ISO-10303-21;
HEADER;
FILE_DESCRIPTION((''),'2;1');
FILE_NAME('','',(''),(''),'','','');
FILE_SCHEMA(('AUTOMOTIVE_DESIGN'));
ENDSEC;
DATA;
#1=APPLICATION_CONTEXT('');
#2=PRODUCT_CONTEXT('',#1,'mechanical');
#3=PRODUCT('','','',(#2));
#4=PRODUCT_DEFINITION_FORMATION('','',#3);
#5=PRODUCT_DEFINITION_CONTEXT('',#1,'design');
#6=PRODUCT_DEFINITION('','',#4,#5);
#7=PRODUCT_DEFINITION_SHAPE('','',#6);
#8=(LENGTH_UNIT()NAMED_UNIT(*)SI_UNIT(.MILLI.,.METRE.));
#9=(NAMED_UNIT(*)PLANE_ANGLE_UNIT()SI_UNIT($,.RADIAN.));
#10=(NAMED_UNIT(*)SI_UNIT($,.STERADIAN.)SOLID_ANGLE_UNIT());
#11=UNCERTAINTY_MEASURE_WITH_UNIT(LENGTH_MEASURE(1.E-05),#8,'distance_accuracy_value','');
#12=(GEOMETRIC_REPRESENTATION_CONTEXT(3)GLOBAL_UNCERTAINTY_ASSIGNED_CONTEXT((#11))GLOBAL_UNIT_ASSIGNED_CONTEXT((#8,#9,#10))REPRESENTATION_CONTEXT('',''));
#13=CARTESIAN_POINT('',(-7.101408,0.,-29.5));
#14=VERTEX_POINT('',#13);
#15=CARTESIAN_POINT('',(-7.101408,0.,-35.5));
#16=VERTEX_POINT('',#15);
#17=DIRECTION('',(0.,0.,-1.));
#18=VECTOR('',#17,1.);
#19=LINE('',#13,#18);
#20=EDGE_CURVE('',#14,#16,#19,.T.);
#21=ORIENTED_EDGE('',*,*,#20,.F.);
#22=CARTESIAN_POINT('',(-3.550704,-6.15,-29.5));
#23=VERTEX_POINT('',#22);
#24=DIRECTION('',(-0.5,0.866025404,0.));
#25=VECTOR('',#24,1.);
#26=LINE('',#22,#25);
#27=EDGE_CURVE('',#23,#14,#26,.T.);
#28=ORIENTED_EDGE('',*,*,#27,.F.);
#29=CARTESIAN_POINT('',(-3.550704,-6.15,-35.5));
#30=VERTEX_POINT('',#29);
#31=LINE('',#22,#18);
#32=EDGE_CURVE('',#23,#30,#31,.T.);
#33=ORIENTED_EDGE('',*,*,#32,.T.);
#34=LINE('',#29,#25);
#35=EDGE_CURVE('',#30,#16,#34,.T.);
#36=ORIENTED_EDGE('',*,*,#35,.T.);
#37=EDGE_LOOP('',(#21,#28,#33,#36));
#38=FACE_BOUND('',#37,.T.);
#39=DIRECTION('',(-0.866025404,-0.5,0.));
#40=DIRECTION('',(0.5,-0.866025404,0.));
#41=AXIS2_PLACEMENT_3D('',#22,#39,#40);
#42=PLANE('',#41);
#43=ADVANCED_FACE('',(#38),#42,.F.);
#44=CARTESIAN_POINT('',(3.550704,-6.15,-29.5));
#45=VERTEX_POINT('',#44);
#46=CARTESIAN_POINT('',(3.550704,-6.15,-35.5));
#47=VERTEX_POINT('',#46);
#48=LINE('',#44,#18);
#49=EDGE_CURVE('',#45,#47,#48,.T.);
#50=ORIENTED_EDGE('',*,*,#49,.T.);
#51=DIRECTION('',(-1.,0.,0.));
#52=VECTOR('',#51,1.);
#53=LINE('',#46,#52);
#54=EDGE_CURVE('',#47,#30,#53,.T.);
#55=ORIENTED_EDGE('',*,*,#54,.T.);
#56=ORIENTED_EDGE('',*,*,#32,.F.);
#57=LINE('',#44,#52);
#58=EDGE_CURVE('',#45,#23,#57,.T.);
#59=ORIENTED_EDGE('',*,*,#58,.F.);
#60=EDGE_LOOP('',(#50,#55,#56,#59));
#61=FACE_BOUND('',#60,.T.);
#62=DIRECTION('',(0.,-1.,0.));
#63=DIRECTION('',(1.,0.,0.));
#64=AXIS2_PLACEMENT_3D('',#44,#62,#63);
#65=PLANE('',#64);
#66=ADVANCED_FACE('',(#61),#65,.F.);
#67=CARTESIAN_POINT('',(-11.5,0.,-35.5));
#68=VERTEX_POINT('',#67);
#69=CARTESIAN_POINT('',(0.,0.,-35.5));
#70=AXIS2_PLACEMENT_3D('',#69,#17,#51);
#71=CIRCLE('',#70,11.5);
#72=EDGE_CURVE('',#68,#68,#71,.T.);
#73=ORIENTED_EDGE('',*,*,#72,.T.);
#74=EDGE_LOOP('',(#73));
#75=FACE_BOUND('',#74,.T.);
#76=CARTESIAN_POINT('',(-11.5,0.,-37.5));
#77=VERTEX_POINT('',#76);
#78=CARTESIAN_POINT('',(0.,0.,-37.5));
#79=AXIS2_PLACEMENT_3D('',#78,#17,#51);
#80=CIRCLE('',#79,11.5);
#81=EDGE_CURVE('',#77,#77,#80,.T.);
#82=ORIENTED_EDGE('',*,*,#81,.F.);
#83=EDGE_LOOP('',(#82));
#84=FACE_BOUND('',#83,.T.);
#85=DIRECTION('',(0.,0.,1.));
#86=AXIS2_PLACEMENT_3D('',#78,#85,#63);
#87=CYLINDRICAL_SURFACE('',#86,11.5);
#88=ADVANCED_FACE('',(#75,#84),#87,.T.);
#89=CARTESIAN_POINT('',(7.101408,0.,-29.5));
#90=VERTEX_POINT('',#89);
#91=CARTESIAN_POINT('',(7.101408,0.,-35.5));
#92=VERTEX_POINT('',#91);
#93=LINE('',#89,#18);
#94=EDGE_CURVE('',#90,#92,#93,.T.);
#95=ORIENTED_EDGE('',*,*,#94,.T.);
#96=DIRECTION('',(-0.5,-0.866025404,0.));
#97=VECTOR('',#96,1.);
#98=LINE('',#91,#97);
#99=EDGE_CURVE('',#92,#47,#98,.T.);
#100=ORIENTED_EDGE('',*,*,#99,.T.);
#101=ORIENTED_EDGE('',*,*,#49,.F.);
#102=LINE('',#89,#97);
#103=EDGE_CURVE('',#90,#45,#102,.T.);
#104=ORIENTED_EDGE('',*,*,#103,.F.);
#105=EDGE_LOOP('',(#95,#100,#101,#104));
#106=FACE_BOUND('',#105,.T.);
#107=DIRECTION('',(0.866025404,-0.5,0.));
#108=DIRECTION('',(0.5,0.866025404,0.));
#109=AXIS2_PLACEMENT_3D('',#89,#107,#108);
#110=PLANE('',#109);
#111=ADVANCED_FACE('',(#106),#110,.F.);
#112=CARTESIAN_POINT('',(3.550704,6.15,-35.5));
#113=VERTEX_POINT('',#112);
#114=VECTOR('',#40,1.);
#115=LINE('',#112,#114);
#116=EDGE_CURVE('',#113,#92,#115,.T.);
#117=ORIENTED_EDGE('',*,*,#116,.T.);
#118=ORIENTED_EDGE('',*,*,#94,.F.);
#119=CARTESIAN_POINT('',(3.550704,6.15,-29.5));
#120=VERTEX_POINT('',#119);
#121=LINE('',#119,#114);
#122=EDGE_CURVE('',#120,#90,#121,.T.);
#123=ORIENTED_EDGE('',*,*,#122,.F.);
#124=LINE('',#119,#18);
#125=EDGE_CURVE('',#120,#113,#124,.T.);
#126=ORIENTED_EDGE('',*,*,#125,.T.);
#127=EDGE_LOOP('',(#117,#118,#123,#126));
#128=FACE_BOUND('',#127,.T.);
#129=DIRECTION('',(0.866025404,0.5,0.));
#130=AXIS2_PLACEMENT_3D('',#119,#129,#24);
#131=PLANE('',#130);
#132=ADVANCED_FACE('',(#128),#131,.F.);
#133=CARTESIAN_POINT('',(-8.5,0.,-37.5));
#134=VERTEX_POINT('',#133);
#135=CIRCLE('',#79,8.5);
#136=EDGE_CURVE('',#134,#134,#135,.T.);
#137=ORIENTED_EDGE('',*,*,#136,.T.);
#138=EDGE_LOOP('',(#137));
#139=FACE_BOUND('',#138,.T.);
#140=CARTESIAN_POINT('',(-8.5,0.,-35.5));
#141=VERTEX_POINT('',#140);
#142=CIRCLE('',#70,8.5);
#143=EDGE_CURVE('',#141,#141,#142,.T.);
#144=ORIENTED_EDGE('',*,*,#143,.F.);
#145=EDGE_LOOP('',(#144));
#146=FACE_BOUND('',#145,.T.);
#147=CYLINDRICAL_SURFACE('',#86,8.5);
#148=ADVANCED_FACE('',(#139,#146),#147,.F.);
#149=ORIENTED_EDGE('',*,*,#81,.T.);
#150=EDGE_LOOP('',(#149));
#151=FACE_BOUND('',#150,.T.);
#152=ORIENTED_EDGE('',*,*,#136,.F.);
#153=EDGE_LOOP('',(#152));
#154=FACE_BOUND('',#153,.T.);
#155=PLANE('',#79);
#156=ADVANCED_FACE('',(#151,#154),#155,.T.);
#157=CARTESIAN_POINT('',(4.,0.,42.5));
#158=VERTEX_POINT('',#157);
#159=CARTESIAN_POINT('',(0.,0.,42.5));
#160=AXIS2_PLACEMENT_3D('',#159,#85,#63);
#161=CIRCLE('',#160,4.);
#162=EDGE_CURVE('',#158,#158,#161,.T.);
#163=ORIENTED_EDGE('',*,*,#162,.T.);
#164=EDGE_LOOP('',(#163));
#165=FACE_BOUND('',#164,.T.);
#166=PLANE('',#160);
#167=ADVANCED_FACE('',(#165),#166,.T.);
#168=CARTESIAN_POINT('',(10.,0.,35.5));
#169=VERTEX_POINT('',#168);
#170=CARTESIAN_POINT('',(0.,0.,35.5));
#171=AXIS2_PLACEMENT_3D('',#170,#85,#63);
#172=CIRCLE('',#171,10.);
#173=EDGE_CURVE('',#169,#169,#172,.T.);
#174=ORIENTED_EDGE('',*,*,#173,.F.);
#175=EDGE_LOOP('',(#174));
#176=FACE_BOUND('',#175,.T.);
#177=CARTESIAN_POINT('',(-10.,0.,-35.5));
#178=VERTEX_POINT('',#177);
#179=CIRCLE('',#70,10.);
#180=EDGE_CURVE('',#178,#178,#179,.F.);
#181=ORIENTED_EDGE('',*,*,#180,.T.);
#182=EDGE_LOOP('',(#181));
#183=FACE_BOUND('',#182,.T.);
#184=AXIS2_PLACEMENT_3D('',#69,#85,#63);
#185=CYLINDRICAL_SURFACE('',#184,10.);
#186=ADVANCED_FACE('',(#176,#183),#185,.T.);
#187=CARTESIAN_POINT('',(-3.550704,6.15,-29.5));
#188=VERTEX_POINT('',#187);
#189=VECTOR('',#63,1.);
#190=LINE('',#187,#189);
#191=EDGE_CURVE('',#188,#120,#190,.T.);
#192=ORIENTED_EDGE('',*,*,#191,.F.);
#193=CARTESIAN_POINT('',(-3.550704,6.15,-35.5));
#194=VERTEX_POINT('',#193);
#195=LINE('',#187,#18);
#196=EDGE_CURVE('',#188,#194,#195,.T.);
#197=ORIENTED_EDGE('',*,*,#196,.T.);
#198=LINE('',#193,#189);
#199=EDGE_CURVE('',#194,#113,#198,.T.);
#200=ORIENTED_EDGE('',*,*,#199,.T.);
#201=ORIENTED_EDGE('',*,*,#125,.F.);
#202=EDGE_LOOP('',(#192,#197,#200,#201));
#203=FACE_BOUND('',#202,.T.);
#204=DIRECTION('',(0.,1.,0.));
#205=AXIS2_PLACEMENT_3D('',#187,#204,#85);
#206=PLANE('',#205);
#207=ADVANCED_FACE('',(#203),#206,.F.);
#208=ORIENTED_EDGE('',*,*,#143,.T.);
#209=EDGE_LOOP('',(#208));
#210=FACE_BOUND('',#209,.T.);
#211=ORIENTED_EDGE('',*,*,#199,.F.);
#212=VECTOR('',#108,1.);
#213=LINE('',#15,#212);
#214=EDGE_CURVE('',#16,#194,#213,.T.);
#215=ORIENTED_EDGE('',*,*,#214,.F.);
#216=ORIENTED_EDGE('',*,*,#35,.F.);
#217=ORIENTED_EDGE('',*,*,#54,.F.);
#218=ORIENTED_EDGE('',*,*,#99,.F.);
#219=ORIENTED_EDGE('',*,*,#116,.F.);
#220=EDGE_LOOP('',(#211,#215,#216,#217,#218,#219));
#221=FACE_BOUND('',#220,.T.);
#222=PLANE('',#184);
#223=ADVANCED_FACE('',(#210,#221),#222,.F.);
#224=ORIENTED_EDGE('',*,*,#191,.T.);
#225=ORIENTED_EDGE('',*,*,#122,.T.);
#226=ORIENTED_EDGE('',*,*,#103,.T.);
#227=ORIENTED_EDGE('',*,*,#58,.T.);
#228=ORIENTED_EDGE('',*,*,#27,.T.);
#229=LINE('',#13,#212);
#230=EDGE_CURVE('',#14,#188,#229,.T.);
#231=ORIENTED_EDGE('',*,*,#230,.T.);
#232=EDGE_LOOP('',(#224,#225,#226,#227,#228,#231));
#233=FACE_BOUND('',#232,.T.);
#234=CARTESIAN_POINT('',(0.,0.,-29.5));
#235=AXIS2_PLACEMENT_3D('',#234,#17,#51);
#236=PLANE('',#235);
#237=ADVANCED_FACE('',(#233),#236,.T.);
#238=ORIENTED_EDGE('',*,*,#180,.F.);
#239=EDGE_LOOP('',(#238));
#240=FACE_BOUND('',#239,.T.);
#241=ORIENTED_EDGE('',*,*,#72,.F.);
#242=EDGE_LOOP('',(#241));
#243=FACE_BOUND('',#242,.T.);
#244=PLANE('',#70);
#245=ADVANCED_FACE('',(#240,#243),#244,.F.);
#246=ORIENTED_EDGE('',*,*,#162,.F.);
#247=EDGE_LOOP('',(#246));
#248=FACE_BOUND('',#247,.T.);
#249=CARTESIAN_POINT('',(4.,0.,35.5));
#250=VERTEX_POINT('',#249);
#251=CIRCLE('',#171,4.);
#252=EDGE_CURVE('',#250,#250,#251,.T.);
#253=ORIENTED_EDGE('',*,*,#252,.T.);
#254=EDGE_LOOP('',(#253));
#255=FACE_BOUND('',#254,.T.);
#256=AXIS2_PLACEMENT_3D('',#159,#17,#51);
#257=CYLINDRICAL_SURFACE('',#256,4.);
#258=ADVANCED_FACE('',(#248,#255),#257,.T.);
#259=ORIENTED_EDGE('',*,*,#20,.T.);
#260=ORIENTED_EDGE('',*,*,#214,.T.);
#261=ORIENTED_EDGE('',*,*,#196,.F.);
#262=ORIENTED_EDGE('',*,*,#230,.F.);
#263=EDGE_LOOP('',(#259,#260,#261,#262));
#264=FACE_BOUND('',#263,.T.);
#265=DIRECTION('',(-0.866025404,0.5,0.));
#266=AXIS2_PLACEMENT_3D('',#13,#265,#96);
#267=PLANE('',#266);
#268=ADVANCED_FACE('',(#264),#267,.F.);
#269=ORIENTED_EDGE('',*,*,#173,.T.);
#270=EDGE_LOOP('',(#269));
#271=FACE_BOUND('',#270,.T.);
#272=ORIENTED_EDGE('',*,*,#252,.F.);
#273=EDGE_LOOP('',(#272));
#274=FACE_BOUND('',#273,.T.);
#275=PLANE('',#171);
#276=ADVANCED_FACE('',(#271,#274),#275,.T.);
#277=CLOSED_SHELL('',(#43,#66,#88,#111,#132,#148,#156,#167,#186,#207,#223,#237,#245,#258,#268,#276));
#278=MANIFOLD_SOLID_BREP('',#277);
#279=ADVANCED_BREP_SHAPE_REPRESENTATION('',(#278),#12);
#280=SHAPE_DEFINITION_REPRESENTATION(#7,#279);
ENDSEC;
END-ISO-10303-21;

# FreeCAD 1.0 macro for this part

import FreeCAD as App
import Part
import Sketcher
from FreeCAD import Vector
Q = App.Units.Quantity


def add_polygon(sketch, points):
    """Adds a closed chain of lines whose ends are joined by coincident constraints."""
    first, n = sketch.GeometryCount, len(points)
    for a, b in zip(points, points[1:] + points[:1]):
        sketch.addGeometry(Part.LineSegment(App.Vector(*a, 0), App.Vector(*b, 0)), False)
    for i in range(n):
        sketch.addConstraint(Sketcher.Constraint("Coincident", first + i, 2, first + (i + 1) % n, 1))

doc = App.newDocument("Part")
body = doc.addObject("PartDesign::Body", "Body")

# Sketch on XY plane
sketch1 = body.newObject("Sketcher::SketchObject", "Sketch")
sketch1.AttachmentSupport = (doc.getObject("XY_Plane"), [""])
sketch1.MapMode = "FlatFace"
sketch1.addGeometry(Part.Circle(Vector(0, 0, 0), Vector(0, 0, 1), 10), False)
sketch1.addConstraint(Sketcher.Constraint("Coincident", 0, 3, -1, 1))
sketch1.addConstraint(Sketcher.Constraint("Diameter", 0, Q("20 mm")))
pad1 = body.newObject("PartDesign::Pad", "Pad")
pad1.Profile = sketch1
pad1.Type = "TwoLengths"
pad1.Length = 35.5
pad1.Length2 = 35.5

# Sketch on XY plane
sketch2 = body.newObject("Sketcher::SketchObject", "Sketch001")
sketch2.AttachmentSupport = (doc.getObject("XY_Plane"), [""])
sketch2.MapMode = "FlatFace"
sketch2.AttachmentOffset = App.Placement(Vector(0, 0, -35.5), App.Rotation())
add_polygon(sketch2, [(-7.101408, 0), (-3.550704, 6.15), (3.550704, 6.15), (7.101408, 0), (3.550704, -6.15), (-3.550704, -6.15)])  # lines 0-5
sketch2.addConstraint(Sketcher.Constraint("Horizontal", 1))
sketch2.addConstraint(Sketcher.Constraint("Horizontal", 4))
sketch2.addConstraint(Sketcher.Constraint("Symmetric", 0, 2, 3, 2, -1, 1))
sketch2.addConstraint(Sketcher.Constraint("Symmetric", 2, 2, 5, 2, -1, 1))
sketch2.addConstraint(Sketcher.Constraint("PointOnObject", 2, 2, -1))
sketch2.addConstraint(Sketcher.Constraint("Parallel", 2, 5))
sketch2.addConstraint(Sketcher.Constraint("Vertical", 1, 2, 3, 2))
sketch2.addConstraint(Sketcher.Constraint("Angle", 0, Q("60 deg")))
sketch2.addConstraint(Sketcher.Constraint("DistanceY", 3, 2, 1, 2, Q("12.3 mm")))
sketch2.addConstraint(Sketcher.Constraint("DistanceX", 1, 1, 1, 2, Q("7.101408 mm")))
pocket1 = body.newObject("PartDesign::Pocket", "Pocket")
pocket1.Profile = sketch2
pocket1.Length = 6
pocket1.Reversed = True

# Sketch on XY plane
sketch3 = body.newObject("Sketcher::SketchObject", "Sketch002")
sketch3.AttachmentSupport = (doc.getObject("XY_Plane"), [""])
sketch3.MapMode = "FlatFace"
sketch3.AttachmentOffset = App.Placement(Vector(0, 0, 35.5), App.Rotation())
sketch3.addGeometry(Part.Circle(Vector(0, 0, 0), Vector(0, 0, 1), 4), False)
sketch3.addConstraint(Sketcher.Constraint("Coincident", 0, 3, -1, 1))
sketch3.addConstraint(Sketcher.Constraint("Diameter", 0, Q("8 mm")))
pad2 = body.newObject("PartDesign::Pad", "Pad001")
pad2.Profile = sketch3
pad2.Length = 7

# Sketch on XY plane
sketch4 = body.newObject("Sketcher::SketchObject", "Sketch003")
sketch4.AttachmentSupport = (doc.getObject("XY_Plane"), [""])
sketch4.MapMode = "FlatFace"
sketch4.AttachmentOffset = App.Placement(Vector(0, 0, -35.5), App.Rotation())
sketch4.addGeometry(Part.Circle(Vector(0, 0, 0), Vector(0, 0, 1), 11.5), False)
sketch4.addGeometry(Part.Circle(Vector(0, 0, 0), Vector(0, 0, 1), 8.5), False)
sketch4.addConstraint(Sketcher.Constraint("Coincident", 0, 3, -1, 1))
sketch4.addConstraint(Sketcher.Constraint("Coincident", 1, 3, -1, 1))
sketch4.addConstraint(Sketcher.Constraint("Diameter", 0, Q("23 mm")))
sketch4.addConstraint(Sketcher.Constraint("Diameter", 1, Q("17 mm")))
pad3 = body.newObject("PartDesign::Pad", "Pad002")
pad3.Profile = sketch4
pad3.Length = 2
pad3.Reversed = True

doc.recompute()
